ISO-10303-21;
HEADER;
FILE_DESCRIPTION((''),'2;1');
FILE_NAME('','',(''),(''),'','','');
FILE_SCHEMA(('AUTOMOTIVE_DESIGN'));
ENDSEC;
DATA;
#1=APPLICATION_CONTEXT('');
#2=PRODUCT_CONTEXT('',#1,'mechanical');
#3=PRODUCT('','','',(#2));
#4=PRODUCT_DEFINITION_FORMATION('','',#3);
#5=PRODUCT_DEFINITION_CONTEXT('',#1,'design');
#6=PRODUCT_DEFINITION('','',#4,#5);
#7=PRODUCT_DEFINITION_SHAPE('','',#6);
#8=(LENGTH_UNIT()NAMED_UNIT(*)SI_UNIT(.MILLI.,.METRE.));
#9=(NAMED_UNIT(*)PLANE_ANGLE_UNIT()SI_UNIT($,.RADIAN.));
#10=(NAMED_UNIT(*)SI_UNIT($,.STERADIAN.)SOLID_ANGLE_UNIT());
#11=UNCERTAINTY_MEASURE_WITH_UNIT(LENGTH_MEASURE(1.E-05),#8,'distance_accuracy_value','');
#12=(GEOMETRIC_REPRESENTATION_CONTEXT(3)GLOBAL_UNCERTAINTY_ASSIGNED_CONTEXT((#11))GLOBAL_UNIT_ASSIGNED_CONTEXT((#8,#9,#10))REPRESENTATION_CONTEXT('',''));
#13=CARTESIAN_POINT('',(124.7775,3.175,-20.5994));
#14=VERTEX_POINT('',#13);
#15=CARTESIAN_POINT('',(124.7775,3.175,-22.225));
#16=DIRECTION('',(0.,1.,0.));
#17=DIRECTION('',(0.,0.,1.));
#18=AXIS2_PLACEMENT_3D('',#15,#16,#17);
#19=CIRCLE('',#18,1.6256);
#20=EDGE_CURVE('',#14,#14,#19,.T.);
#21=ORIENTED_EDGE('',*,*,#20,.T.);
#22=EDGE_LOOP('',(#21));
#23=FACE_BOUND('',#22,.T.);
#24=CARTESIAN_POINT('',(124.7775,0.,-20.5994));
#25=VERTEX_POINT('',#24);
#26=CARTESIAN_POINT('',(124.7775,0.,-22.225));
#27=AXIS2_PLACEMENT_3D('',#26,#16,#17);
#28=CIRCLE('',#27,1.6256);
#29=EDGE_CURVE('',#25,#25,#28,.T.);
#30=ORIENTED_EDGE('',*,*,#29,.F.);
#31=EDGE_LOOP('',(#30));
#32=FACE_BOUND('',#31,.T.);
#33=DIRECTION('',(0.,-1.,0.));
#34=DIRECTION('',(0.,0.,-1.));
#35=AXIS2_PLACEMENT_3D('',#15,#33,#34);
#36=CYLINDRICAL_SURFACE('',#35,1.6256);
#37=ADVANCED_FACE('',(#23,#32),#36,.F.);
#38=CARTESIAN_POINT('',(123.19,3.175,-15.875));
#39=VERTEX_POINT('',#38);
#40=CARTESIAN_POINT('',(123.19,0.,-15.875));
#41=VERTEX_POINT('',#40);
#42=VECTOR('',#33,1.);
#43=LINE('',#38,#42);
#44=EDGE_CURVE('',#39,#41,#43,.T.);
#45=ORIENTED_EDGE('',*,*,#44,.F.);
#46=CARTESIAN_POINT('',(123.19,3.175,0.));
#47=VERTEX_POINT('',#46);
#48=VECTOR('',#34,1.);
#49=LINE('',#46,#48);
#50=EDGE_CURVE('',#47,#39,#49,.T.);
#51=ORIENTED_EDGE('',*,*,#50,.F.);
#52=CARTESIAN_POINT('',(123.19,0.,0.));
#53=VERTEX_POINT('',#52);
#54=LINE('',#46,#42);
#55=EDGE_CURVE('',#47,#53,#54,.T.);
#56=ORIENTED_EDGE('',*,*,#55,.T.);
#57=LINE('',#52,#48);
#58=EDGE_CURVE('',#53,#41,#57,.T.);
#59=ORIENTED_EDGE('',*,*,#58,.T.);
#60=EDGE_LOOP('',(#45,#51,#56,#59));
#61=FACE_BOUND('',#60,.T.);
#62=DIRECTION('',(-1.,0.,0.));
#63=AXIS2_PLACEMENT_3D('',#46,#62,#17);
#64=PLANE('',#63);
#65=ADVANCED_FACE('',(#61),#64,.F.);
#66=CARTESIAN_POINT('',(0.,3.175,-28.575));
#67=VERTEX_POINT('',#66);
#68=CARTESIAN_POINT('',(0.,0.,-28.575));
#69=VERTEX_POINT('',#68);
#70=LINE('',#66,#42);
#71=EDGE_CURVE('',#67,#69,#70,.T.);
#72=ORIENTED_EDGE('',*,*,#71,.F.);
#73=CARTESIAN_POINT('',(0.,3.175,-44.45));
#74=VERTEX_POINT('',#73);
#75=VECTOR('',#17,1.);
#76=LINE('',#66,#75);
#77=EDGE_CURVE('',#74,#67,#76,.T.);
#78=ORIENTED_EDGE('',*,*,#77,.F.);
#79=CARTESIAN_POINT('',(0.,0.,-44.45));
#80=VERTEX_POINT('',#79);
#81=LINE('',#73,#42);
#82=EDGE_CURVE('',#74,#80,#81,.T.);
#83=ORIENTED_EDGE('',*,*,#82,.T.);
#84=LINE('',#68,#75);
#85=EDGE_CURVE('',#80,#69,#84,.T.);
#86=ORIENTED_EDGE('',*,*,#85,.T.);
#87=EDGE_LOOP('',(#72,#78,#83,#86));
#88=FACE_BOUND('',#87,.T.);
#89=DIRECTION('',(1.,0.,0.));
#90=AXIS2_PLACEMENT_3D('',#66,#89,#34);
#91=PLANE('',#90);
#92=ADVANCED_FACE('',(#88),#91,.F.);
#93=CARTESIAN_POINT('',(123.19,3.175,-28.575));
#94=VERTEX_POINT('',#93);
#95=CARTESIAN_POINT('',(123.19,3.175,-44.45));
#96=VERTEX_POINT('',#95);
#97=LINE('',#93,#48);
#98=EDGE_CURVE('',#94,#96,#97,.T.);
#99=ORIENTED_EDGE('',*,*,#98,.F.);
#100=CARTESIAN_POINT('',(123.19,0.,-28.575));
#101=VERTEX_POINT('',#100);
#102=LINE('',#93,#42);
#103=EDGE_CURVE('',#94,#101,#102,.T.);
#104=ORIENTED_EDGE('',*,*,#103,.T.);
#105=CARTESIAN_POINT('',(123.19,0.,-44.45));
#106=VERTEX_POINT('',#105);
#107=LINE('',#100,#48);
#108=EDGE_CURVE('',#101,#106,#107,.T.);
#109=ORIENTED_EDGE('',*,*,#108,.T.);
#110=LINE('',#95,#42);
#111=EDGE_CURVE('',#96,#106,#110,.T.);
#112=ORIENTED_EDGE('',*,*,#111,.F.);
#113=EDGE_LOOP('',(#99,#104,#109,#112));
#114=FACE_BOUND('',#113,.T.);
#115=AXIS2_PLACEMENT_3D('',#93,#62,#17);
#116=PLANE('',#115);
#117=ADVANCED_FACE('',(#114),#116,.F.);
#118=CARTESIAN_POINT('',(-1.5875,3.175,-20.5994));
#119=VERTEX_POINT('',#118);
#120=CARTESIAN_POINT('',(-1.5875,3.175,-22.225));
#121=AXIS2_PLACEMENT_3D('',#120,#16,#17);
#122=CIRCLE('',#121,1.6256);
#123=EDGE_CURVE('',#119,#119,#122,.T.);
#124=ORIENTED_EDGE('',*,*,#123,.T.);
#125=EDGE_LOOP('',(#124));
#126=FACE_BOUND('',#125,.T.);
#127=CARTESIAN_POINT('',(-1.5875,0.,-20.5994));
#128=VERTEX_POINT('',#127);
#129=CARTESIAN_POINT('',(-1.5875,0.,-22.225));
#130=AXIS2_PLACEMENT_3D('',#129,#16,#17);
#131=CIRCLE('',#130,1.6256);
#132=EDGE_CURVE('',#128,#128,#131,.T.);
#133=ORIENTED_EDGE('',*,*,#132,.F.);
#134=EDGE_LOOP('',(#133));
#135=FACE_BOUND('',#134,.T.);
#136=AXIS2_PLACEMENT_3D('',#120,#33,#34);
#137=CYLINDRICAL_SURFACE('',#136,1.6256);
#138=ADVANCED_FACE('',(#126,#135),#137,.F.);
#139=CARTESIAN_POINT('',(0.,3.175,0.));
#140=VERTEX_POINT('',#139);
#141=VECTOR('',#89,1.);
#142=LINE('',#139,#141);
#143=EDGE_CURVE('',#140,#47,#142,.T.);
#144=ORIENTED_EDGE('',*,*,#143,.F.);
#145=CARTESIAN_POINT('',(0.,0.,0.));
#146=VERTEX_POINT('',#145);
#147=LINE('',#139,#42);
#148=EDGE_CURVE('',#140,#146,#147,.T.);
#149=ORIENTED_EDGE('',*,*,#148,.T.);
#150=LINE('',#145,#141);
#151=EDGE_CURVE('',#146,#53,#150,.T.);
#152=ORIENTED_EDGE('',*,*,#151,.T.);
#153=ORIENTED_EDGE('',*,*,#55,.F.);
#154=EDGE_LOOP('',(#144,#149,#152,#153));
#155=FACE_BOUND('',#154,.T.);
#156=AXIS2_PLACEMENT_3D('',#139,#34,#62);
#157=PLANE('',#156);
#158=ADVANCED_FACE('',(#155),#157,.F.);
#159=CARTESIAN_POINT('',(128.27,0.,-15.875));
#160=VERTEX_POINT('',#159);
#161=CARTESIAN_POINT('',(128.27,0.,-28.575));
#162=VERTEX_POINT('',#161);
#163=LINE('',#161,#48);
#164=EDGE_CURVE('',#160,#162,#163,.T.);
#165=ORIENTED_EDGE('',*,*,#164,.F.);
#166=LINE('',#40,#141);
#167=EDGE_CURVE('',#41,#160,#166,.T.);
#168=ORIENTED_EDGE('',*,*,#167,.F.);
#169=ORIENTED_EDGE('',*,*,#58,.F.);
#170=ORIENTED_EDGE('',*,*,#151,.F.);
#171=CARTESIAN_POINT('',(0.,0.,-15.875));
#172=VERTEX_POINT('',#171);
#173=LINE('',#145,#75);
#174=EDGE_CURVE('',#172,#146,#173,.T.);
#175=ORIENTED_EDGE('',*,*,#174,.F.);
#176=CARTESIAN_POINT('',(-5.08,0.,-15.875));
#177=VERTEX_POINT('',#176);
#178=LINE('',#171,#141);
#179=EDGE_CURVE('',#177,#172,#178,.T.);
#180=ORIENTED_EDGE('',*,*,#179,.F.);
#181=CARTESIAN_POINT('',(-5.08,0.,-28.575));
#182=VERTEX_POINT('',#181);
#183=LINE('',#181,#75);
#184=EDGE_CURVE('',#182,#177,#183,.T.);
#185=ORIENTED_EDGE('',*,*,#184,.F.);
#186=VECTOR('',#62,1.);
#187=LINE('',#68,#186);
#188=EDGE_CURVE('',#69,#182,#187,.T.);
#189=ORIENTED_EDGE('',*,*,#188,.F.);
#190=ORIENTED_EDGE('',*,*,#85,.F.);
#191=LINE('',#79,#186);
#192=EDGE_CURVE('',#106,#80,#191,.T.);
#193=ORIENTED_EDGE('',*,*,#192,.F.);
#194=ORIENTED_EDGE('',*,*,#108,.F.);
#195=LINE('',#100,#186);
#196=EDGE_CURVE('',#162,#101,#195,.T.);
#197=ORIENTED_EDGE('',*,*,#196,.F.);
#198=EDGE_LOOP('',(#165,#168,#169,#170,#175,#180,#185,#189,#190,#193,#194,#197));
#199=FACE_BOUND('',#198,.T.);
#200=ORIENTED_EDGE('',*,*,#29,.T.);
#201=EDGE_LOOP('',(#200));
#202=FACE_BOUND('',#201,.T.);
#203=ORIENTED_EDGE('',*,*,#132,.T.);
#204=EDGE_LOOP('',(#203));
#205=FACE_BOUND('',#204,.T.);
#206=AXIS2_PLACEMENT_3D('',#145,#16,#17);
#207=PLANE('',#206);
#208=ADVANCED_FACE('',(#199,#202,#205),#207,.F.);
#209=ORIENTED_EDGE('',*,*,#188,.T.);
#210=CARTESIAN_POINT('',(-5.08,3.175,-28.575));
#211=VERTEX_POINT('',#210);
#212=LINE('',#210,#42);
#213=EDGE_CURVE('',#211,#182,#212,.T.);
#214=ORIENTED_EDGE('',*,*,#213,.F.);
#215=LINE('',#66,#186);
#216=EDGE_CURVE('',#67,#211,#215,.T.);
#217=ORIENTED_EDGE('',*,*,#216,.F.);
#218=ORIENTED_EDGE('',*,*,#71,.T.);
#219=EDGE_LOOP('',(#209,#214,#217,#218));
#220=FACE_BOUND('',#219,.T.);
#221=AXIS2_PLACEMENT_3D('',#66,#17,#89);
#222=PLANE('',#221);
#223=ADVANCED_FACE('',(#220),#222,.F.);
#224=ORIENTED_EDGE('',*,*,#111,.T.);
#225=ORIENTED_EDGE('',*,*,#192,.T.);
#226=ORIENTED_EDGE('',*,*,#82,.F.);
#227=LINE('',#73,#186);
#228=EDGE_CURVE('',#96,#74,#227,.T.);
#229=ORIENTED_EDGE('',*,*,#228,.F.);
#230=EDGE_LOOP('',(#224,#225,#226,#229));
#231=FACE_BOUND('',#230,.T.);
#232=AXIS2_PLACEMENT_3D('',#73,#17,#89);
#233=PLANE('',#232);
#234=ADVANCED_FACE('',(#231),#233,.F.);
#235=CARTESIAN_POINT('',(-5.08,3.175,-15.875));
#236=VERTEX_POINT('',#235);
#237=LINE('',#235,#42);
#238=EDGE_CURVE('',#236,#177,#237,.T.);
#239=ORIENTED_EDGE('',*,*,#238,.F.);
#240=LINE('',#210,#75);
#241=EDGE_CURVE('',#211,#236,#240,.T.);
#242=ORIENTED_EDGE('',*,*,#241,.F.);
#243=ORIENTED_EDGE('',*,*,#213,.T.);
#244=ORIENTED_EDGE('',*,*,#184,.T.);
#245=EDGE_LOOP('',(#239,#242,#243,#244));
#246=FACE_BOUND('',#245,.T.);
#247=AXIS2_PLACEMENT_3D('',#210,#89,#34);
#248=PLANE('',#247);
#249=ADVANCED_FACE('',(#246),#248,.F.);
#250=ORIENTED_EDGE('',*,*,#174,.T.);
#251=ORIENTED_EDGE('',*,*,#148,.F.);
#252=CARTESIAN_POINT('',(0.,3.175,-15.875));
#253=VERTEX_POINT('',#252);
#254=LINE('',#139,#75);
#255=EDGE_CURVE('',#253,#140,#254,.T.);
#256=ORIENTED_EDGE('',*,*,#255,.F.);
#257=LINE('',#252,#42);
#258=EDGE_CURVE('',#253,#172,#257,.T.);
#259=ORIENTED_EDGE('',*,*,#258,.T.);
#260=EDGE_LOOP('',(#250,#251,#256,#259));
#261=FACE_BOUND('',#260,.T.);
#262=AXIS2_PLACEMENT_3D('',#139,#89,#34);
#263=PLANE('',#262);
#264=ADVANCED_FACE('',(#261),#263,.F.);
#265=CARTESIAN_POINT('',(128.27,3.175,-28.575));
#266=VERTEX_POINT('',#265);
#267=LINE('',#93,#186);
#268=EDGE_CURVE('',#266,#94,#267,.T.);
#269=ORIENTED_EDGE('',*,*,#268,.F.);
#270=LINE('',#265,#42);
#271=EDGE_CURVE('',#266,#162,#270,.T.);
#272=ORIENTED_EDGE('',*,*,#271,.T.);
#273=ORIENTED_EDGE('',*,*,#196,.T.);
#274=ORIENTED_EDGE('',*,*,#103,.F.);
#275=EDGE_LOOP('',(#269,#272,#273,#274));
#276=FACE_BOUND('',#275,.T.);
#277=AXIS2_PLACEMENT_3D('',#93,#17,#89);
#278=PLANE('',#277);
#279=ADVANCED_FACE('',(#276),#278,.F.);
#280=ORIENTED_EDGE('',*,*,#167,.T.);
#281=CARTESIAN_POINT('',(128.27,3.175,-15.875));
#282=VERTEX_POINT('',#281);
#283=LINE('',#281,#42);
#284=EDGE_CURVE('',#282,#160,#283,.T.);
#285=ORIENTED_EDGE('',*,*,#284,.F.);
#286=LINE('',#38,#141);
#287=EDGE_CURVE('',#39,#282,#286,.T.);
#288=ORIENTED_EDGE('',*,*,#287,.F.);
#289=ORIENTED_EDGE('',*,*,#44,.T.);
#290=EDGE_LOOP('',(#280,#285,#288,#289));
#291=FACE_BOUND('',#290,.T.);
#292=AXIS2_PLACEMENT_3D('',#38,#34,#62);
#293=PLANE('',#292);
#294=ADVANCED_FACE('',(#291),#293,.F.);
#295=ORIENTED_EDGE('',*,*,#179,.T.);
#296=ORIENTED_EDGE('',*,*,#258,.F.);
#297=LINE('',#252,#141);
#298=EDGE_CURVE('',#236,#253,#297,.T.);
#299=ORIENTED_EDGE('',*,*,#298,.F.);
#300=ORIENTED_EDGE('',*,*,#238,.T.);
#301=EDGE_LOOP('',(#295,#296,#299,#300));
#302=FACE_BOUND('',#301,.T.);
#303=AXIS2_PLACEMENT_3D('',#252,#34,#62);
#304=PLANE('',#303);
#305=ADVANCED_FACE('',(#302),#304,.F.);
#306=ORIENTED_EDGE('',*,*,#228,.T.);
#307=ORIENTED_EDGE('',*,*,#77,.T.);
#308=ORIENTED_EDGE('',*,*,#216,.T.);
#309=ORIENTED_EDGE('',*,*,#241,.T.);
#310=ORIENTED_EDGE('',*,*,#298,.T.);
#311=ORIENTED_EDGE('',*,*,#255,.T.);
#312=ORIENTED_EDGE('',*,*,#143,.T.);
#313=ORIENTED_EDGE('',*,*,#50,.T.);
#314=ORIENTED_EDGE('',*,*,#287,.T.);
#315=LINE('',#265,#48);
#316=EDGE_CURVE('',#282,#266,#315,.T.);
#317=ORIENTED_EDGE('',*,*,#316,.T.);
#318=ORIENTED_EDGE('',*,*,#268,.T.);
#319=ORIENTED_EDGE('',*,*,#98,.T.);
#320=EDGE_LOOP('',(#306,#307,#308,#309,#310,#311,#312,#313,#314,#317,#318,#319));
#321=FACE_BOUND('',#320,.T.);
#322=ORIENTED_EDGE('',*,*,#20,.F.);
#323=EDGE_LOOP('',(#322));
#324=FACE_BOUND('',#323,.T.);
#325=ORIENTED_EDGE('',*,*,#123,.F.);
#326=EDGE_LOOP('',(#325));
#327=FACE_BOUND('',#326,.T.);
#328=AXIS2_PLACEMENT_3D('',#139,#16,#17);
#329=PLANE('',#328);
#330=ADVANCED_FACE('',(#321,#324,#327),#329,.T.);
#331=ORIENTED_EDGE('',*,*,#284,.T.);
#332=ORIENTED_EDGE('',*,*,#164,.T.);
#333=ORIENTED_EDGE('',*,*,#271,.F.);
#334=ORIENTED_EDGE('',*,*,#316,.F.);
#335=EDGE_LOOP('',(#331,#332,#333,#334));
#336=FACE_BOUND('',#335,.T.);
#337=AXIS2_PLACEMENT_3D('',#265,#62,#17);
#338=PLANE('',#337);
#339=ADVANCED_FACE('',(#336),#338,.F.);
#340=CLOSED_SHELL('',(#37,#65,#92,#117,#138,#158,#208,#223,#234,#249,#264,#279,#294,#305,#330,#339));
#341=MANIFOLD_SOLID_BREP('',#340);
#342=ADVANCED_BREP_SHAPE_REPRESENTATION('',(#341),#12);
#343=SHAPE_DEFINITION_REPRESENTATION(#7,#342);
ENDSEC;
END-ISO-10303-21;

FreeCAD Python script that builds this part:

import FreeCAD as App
import Part
import Sketcher
Q = App.Units.Quantity


def add_polygon(sketch, points):
    """Adds a closed chain of lines whose ends are joined by coincident constraints."""
    first, n = sketch.GeometryCount, len(points)
    for a, b in zip(points, points[1:] + points[:1]):
        sketch.addGeometry(Part.LineSegment(App.Vector(*a, 0), App.Vector(*b, 0)), False)
    for i in range(n):
        sketch.addConstraint(Sketcher.Constraint("Coincident", first + i, 2, first + (i + 1) % n, 1))

doc = App.newDocument("Part")
body = doc.addObject("PartDesign::Body", "Body")

sketch1 = body.newObject("Sketcher::SketchObject", "Sketch")
sketch1.AttachmentSupport = (doc.getObject("XZ_Plane"), [""])
sketch1.MapMode = "FlatFace"
add_polygon(sketch1, [(0, -44.5), (0, -28.6), (-5.1, -28.6), (-5.1, -15.9), (0, -15.9), (0, 0), (123.2, 0), (123.2, -15.9), (128.3, -15.9), (128.3, -28.6), (123.2, -28.6), (123.2, -44.5)])
sketch1.addGeometry(Part.Circle(App.Vector(124.8, -22.2, 0), App.Vector(0, 0, 1), 1.6), False)
sketch1.addGeometry(Part.Circle(App.Vector(-1.6, -22.2, 0), App.Vector(0, 0, 1), 1.6), False)
sketch1.addConstraint([
    Sketcher.Constraint("Vertical", 0),
    Sketcher.Constraint("Horizontal", 1),
    Sketcher.Constraint("Vertical", 2),
    Sketcher.Constraint("Horizontal", 3),
    Sketcher.Constraint("Vertical", 4),
    Sketcher.Constraint("Horizontal", 5),
    Sketcher.Constraint("Vertical", 6),
    Sketcher.Constraint("Horizontal", 7),
    Sketcher.Constraint("Vertical", 8),
    Sketcher.Constraint("Horizontal", 9),
    Sketcher.Constraint("Vertical", 10),
    Sketcher.Constraint("Horizontal", 11),
    Sketcher.Constraint("Coincident", 4, 2, -1, 1),
    Sketcher.Constraint("Equal", 12, 13),
    Sketcher.Constraint("PointOnObject", 0, 2, -2),
    Sketcher.Constraint("Horizontal", 12, 3, 13, 3),
    Sketcher.Constraint("Horizontal", 3, 2, 6, 2),
    Sketcher.Constraint("Horizontal", 1, 2, 8, 2),
    Sketcher.Constraint("Vertical", 6, 2, 9, 2),
    Sketcher.Constraint("Equal", 3, 7),
    Sketcher.Constraint("Equal", 0, 4),
    Sketcher.Constraint("Diameter", 12, Q("0.128 in")),
    Sketcher.Constraint("DistanceX", 1, 2, 1, 1, Q("0.2 in")),
    Sketcher.Constraint("DistanceY", 2, 1, 2, 2, Q("0.5 in")),
    Sketcher.Constraint("DistanceX", 5, 1, 5, 2, Q("4.85 in")),
    Sketcher.Constraint("DistanceY", 0, 1, 0, 2, Q("0.625 in")),
    Sketcher.Constraint("DistanceY", 0, 2, 13, 3, Q("0.25 in")),
    Sketcher.Constraint("DistanceX", 13, 3, -1, 1, Q("0.0625 in")),
    Sketcher.Constraint("DistanceX", 13, 3, 12, 3, Q("4.975 in")),
])
pad1 = body.newObject("PartDesign::Pad", "Pad")
pad1.Profile = sketch1
pad1.Length = Q("0.125 in")
pad1.Reversed = True

doc.recompute()
